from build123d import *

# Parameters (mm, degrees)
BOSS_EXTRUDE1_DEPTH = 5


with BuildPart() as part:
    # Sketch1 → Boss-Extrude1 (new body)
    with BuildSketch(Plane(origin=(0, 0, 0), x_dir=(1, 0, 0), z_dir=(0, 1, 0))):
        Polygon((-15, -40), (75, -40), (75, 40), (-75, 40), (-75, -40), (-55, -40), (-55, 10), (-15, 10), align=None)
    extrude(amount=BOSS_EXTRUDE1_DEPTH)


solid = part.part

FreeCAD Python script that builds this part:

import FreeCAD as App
import Part
import Sketcher

V = App.Vector
Q = App.Units.Quantity

doc = App.newDocument("Part")
params = doc.addObject("Spreadsheet::Sheet", "Params")
for row, (alias, value) in enumerate([
    ("sketch1_width", "90 mm"),
    ("sketch1_width2", "150 mm"),
    ("sketch1_width3", "20 mm"),
    ("sketch1_height", "80 mm"),
    ("sketch1_height2", "50 mm"),
    ("pad1_length", "5 mm"),
], start=1):
    params.set(f"A{row}", alias)
    params.set(f"B{row}", "=" + value)
    params.setAlias(f"B{row}", alias)

body = doc.addObject("PartDesign::Body", "Body")

sketch1 = body.newObject("Sketcher::SketchObject", "Sketch")
sketch1.AttachmentSupport = (doc.getObject("XZ_Plane"), [""])
sketch1.MapMode = "FlatFace"
sketch1.addGeometry([
    Part.LineSegment(V(-15, 40, 0), V(75, 40, 0)),
    Part.LineSegment(V(75, 40, 0), V(75, -40, 0)),
    Part.LineSegment(V(75, -40, 0), V(-75, -40, 0)),
    Part.LineSegment(V(-75, -40, 0), V(-75, 40, 0)),
    Part.LineSegment(V(-75, 40, 0), V(-55, 40, 0)),
    Part.LineSegment(V(-55, 40, 0), V(-55, -10, 0)),
    Part.LineSegment(V(-55, -10, 0), V(-15, -10, 0)),
    Part.LineSegment(V(-15, -10, 0), V(-15, 40, 0)),
], False)
sketch1.addConstraint([
    Sketcher.Constraint("Coincident", 0, 2, 1, 1),
    Sketcher.Constraint("Coincident", 1, 2, 2, 1),
    Sketcher.Constraint("Coincident", 2, 2, 3, 1),
    Sketcher.Constraint("Coincident", 3, 2, 4, 1),
    Sketcher.Constraint("Coincident", 4, 2, 5, 1),
    Sketcher.Constraint("Coincident", 5, 2, 6, 1),
    Sketcher.Constraint("Coincident", 6, 2, 7, 1),
    Sketcher.Constraint("Coincident", 7, 2, 0, 1),
    Sketcher.Constraint("Horizontal", 0),
    Sketcher.Constraint("Vertical", 1),
    Sketcher.Constraint("Horizontal", 2),
    Sketcher.Constraint("Vertical", 3),
    Sketcher.Constraint("Horizontal", 4),
    Sketcher.Constraint("Vertical", 5),
    Sketcher.Constraint("Horizontal", 6),
    Sketcher.Constraint("Vertical", 7),
    Sketcher.Constraint("Symmetric", 0, 2, 2, 2, -1, 1),
    Sketcher.Constraint("Horizontal", 0, 2, 3, 2),
    Sketcher.Constraint("DistanceX", 0, 1, 0, 2, Q("90 mm")),
    Sketcher.Constraint("DistanceX", 2, 2, 2, 1, Q("150 mm")),
    Sketcher.Constraint("DistanceX", 4, 1, 4, 2, Q("20 mm")),
    Sketcher.Constraint("DistanceY", 1, 2, 1, 1, Q("80 mm")),
    Sketcher.Constraint("DistanceY", 5, 2, 5, 1, Q("50 mm")),
])
sketch1.setExpression("Constraints[18]", "Params.sketch1_width")
sketch1.setExpression("Constraints[19]", "Params.sketch1_width2")
sketch1.setExpression("Constraints[20]", "Params.sketch1_width3")
sketch1.setExpression("Constraints[21]", "Params.sketch1_height")
sketch1.setExpression("Constraints[22]", "Params.sketch1_height2")
pad1 = body.newObject("PartDesign::Pad", "Pad")
pad1.Profile = sketch1
pad1.setExpression("Length", "Params.pad1_length")
pad1.Reversed = True

doc.recompute()
